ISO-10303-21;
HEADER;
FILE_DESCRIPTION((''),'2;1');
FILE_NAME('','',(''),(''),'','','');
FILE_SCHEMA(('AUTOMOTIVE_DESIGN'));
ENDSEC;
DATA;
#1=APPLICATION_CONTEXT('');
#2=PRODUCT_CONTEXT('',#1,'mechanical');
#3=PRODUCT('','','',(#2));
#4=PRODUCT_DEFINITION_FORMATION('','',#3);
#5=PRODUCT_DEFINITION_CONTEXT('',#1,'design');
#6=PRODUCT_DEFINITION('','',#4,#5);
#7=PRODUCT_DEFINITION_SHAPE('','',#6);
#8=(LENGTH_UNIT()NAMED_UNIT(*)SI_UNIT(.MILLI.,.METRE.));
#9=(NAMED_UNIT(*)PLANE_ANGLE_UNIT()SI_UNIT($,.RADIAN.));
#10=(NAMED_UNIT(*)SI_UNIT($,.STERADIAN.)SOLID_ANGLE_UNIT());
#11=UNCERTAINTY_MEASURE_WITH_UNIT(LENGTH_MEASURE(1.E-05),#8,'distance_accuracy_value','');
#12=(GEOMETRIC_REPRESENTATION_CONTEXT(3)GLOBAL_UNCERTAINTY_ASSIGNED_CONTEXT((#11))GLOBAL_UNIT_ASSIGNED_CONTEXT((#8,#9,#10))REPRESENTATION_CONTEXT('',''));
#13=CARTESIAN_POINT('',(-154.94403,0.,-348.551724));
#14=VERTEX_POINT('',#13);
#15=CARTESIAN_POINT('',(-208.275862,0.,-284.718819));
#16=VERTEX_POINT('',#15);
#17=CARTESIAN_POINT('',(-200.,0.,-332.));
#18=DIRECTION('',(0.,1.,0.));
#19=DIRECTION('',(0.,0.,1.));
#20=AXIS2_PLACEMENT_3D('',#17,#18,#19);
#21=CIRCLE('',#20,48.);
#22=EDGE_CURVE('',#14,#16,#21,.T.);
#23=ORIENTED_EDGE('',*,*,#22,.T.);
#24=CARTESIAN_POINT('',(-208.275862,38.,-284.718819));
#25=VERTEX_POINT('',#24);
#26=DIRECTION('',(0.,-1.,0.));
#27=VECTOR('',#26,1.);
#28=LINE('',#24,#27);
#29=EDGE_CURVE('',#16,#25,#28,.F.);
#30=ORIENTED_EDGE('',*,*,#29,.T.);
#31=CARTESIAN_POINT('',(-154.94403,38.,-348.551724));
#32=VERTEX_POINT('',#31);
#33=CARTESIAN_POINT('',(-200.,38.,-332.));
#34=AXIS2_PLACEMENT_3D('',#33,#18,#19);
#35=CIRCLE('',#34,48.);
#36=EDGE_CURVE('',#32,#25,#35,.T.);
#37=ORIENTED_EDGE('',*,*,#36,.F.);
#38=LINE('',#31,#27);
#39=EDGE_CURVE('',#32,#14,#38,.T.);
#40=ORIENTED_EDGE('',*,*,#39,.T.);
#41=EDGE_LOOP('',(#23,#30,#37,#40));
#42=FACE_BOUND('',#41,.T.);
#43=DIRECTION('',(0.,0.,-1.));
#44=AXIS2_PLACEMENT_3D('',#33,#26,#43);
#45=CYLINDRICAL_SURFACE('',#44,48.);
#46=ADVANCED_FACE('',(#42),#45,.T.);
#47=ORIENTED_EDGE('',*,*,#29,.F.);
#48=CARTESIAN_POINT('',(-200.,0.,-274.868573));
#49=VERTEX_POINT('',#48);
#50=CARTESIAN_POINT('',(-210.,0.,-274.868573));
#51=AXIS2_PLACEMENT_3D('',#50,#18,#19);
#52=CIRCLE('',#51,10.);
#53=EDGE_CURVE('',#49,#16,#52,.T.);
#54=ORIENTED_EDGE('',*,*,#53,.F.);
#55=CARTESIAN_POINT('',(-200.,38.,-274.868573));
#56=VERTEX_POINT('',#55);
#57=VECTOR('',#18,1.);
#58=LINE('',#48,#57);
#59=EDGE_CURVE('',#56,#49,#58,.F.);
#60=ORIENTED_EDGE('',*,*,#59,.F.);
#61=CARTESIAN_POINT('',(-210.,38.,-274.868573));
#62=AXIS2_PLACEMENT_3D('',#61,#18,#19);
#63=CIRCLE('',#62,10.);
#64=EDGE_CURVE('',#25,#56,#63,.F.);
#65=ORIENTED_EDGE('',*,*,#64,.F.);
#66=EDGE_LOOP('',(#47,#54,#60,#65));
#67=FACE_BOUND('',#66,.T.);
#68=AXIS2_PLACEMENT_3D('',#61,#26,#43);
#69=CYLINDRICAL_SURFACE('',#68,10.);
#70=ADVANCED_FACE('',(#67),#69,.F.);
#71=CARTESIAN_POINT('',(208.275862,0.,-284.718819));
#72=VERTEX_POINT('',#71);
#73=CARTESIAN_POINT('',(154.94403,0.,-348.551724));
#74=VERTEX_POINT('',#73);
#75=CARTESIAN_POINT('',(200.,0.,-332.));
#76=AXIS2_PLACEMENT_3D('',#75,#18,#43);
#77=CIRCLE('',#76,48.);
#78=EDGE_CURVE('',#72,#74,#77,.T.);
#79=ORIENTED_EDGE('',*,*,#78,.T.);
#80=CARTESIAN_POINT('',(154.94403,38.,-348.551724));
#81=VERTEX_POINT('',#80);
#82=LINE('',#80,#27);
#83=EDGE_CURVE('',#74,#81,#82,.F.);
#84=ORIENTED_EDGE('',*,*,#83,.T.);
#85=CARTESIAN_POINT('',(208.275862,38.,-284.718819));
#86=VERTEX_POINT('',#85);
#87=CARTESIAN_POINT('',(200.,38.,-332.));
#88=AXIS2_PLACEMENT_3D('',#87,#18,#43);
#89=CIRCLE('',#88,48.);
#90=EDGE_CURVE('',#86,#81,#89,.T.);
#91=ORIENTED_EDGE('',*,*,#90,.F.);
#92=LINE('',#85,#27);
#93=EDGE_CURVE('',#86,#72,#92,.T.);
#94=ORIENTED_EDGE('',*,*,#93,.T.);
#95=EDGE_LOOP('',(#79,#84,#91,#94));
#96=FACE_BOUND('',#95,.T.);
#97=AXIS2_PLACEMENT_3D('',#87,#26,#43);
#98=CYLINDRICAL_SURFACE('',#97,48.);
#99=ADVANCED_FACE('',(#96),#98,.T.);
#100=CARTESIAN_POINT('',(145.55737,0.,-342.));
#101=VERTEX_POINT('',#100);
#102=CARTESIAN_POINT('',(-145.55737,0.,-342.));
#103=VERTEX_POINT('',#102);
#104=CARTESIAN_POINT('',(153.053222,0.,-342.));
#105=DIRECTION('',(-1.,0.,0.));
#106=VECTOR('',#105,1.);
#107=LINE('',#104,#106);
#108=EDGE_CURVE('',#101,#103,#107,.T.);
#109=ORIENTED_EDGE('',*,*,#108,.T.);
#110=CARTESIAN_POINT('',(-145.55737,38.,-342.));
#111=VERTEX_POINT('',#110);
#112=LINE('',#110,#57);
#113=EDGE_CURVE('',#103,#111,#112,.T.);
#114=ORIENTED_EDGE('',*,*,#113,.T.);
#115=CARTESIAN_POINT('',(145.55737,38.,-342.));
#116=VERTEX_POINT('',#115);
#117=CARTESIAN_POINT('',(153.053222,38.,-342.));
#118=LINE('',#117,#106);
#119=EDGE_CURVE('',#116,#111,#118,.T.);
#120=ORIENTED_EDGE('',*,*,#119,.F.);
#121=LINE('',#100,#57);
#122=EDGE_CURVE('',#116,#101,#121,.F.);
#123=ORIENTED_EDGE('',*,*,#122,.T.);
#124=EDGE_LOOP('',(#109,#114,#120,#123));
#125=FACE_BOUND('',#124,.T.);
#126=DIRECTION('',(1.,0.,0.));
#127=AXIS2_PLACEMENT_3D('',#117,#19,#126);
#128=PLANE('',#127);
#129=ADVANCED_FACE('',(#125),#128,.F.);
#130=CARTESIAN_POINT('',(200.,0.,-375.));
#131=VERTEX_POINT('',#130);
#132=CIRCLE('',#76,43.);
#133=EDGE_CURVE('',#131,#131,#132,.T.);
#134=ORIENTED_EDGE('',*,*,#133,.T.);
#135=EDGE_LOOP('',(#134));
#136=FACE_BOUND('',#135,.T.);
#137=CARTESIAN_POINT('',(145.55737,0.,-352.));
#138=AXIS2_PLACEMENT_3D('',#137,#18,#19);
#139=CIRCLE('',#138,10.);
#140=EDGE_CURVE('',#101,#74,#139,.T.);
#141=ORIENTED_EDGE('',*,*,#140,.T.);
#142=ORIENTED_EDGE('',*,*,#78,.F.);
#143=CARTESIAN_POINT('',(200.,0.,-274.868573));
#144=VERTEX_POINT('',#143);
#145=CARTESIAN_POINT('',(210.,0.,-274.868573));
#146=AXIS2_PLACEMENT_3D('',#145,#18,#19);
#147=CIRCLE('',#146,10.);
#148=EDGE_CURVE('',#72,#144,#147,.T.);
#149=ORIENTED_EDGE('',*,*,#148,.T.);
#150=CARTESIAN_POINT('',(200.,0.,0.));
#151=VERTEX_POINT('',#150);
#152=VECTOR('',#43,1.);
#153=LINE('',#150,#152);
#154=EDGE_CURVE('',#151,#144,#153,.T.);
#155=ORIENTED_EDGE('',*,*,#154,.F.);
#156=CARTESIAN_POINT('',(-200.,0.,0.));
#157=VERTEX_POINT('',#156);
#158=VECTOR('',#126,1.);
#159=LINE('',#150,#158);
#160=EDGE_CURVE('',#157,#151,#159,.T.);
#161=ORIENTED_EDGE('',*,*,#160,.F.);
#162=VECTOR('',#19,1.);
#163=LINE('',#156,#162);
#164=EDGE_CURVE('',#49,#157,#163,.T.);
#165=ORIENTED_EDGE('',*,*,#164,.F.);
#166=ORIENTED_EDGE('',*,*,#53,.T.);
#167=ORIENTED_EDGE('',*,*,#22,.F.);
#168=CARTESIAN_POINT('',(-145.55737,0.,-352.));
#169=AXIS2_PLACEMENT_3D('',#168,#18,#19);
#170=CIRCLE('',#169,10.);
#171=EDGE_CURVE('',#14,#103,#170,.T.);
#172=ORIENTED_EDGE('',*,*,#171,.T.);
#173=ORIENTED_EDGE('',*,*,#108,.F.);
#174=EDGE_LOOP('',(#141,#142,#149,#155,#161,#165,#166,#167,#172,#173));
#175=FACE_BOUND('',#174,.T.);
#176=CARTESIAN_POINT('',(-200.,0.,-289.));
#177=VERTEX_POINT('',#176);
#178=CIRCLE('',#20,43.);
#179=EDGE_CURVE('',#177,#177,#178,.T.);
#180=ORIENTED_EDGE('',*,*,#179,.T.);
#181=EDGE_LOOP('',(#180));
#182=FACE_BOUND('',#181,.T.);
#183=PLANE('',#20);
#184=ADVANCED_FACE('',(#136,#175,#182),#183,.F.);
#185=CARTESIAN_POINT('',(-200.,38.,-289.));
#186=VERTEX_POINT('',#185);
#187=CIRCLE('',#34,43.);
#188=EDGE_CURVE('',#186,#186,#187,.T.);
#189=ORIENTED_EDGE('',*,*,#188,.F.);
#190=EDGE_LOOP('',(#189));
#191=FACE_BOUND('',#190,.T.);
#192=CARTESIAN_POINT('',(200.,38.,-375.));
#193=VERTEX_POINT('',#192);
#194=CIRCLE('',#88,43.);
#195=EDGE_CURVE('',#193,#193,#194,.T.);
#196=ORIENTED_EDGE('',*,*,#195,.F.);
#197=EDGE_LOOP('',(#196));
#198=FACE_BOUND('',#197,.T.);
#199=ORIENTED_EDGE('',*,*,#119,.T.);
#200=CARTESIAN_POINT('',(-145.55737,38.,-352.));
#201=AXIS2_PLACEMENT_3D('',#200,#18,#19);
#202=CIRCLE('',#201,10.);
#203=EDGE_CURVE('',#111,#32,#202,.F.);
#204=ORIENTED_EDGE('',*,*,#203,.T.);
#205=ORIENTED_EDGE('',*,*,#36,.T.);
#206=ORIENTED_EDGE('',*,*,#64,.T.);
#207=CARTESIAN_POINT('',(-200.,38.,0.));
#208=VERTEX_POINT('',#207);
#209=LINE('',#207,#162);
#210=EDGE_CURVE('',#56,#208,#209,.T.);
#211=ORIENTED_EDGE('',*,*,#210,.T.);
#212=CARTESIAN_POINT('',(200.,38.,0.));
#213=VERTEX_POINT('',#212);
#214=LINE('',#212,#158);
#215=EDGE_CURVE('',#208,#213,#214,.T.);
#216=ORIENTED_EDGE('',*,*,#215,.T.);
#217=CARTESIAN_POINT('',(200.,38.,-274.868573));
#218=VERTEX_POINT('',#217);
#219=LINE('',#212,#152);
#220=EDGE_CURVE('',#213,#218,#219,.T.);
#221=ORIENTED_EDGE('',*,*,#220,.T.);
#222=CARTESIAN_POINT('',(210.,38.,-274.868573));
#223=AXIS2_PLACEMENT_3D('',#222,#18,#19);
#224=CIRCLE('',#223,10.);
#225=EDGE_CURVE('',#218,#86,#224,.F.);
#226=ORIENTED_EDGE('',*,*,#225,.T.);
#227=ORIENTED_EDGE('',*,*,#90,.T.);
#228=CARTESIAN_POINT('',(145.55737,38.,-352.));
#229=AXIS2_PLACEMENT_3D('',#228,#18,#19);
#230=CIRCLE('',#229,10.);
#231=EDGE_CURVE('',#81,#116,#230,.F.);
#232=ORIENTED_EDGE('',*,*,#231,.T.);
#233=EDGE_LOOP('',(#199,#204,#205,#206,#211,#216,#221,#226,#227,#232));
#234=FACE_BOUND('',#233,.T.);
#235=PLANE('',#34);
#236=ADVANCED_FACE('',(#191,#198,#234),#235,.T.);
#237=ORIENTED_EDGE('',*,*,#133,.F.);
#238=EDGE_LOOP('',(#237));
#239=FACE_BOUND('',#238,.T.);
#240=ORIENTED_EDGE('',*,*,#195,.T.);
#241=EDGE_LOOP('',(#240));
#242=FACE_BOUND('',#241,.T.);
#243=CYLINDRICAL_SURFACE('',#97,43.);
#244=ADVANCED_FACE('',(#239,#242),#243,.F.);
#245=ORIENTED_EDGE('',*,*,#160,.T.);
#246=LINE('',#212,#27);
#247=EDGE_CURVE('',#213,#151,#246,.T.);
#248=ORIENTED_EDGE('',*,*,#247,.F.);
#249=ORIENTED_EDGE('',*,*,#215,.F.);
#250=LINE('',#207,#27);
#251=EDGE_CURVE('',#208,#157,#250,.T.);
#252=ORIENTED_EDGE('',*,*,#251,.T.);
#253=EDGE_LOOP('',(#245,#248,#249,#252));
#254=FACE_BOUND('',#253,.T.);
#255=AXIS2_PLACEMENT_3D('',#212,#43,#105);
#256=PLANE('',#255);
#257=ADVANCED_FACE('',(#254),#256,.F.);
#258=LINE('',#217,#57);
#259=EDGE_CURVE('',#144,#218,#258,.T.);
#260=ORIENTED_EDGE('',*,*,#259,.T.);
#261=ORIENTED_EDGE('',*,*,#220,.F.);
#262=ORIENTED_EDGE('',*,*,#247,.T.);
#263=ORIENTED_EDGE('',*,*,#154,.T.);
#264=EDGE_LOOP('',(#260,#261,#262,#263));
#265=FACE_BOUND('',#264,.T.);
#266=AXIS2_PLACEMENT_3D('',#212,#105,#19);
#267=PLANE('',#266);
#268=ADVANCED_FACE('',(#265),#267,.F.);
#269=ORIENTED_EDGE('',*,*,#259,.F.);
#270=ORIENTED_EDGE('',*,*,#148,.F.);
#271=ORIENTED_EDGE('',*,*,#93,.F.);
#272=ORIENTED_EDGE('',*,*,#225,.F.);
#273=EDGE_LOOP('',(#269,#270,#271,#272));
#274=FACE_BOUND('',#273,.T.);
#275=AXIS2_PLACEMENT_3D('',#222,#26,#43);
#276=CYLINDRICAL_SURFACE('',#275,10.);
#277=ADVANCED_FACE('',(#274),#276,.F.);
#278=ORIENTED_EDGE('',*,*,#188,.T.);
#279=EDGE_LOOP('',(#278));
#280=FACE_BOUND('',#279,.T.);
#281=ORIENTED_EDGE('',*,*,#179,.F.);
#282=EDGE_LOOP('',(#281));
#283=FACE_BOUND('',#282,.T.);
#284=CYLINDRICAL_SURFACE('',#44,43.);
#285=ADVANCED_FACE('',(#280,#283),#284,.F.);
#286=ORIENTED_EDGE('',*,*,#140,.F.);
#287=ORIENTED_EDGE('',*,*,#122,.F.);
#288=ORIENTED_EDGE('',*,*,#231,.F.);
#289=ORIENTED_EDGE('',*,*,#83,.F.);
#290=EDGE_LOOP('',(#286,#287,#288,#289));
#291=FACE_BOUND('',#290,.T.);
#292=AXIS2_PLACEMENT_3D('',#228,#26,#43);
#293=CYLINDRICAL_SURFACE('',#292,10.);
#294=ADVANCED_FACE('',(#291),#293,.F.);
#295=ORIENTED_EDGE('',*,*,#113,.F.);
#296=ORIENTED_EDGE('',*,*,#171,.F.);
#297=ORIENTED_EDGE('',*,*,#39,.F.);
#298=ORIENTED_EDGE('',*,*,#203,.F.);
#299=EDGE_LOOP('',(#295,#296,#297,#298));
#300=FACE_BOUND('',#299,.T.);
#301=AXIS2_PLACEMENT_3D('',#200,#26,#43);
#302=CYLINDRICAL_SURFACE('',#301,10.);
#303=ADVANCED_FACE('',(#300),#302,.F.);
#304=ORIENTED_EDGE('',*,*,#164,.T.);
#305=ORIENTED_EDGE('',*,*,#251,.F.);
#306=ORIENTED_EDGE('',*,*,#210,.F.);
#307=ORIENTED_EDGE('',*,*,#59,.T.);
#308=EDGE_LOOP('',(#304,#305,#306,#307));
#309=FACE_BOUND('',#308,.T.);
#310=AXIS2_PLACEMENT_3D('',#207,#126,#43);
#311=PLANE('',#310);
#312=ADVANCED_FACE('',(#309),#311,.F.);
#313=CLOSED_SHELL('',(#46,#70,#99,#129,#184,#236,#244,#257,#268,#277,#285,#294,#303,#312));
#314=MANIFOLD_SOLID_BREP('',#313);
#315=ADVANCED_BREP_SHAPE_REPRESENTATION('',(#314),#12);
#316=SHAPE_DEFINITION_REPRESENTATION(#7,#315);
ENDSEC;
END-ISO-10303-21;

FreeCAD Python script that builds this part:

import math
import FreeCAD as App
import Part
import Sketcher

V = App.Vector
Q = App.Units.Quantity


def edges_at(feature, points):
    """Names of the edges that pass closest to the given points."""
    edges = feature.Shape.Edges
    near = lambda p: min(range(len(edges)), key=lambda i: edges[i].distToShape(Part.Vertex(*p))[0])
    return sorted({f"Edge{near(p) + 1}" for p in points})

doc = App.newDocument("Part")
params = doc.addObject("Spreadsheet::Sheet", "Params")
for row, (alias, value) in enumerate([
    ("sketch1_diameter", "86 mm"),
    ("sketch1_radius", "48 mm"),
    ("sketch1_width", "400 mm"),
    ("sketch1_height", "284 mm"),
    ("pad1_length", "38 mm"),
    ("fillet_radius", "10 mm"),
], start=1):
    params.set(f"A{row}", alias)
    params.set(f"B{row}", "=" + value)
    params.setAlias(f"B{row}", alias)

body = doc.addObject("PartDesign::Body", "Body")

sketch1 = body.newObject("Sketcher::SketchObject", "Sketch")
sketch1.AttachmentSupport = (doc.getObject("XZ_Plane"), [""])
sketch1.MapMode = "FlatFace"
sketch1.addGeometry([
    Part.LineSegment(V(-200, 0, 0), V(200, 0, 0)),
    Part.LineSegment(V(200, 0, 0), V(200, -284, 0)),
    Part.ArcOfCircle(Part.Circle(V(200, -332, 0), V(0, 0, 1), 48), math.radians(-168), math.radians(90)),
    Part.LineSegment(V(153, -342, 0), V(-153, -342, 0)),
    Part.ArcOfCircle(Part.Circle(V(-200, -332, 0), V(0, 0, 1), 48), math.radians(90), math.radians(348)),
    Part.LineSegment(V(-200, -284, 0), V(-200, 0, 0)),
    Part.Circle(V(200, -332, 0), V(0, 0, 1), 43),
    Part.Circle(V(-200, -332, 0), V(0, 0, 1), 43),
], False)
sketch1.addConstraint([
    Sketcher.Constraint("Coincident", 0, 2, 1, 1),
    Sketcher.Constraint("Coincident", 1, 2, 2, 2),
    Sketcher.Constraint("Coincident", 2, 1, 3, 1),
    Sketcher.Constraint("Coincident", 3, 2, 4, 2),
    Sketcher.Constraint("Coincident", 4, 1, 5, 1),
    Sketcher.Constraint("Coincident", 5, 2, 0, 1),
    Sketcher.Constraint("Horizontal", 0),
    Sketcher.Constraint("Vertical", 1),
    Sketcher.Constraint("Horizontal", 3),
    Sketcher.Constraint("Vertical", 5),
    Sketcher.Constraint("Coincident", 6, 3, 2, 3),
    Sketcher.Constraint("Coincident", 7, 3, 4, 3),
    Sketcher.Constraint("Equal", 2, 4),
    Sketcher.Constraint("Equal", 6, 7),
    Sketcher.Constraint("Symmetric", 0, 2, 5, 2, -1, 1),
    Sketcher.Constraint("Symmetric", 2, 3, 4, 3, -2),
    Sketcher.Constraint("Vertical", 6, 3, 0, 2),
    Sketcher.Constraint("Diameter", 6, Q("86 mm")),
    Sketcher.Constraint("Radius", 2, Q("48 mm")),
    Sketcher.Constraint("DistanceX", 0, 1, 0, 2, Q("400 mm")),
    Sketcher.Constraint("DistanceY", 1, 2, 1, 1, Q("284 mm")),
    Sketcher.Constraint("DistanceY", 2, 1, -1, 1, Q("342 mm")),
])
sketch1.setExpression("Constraints[17]", "Params.sketch1_diameter")
sketch1.setExpression("Constraints[18]", "Params.sketch1_radius")
sketch1.setExpression("Constraints[19]", "Params.sketch1_width")
sketch1.setExpression("Constraints[20]", "Params.sketch1_height")
pad1 = body.newObject("PartDesign::Pad", "Pad")
pad1.Profile = sketch1
pad1.setExpression("Length", "Params.pad1_length")
pad1.Reversed = True
doc.recompute()

fillet = body.newObject("PartDesign::Fillet", "Fillet")
fillet.Base = (pad1, edges_at(pad1, [
    (-200, 19, -284),
    (-153.053, 19, -342),
    (153.053, 19, -342),
    (200, 19, -284),
]))
fillet.setExpression("Radius", "Params.fillet_radius")

doc.recompute()
